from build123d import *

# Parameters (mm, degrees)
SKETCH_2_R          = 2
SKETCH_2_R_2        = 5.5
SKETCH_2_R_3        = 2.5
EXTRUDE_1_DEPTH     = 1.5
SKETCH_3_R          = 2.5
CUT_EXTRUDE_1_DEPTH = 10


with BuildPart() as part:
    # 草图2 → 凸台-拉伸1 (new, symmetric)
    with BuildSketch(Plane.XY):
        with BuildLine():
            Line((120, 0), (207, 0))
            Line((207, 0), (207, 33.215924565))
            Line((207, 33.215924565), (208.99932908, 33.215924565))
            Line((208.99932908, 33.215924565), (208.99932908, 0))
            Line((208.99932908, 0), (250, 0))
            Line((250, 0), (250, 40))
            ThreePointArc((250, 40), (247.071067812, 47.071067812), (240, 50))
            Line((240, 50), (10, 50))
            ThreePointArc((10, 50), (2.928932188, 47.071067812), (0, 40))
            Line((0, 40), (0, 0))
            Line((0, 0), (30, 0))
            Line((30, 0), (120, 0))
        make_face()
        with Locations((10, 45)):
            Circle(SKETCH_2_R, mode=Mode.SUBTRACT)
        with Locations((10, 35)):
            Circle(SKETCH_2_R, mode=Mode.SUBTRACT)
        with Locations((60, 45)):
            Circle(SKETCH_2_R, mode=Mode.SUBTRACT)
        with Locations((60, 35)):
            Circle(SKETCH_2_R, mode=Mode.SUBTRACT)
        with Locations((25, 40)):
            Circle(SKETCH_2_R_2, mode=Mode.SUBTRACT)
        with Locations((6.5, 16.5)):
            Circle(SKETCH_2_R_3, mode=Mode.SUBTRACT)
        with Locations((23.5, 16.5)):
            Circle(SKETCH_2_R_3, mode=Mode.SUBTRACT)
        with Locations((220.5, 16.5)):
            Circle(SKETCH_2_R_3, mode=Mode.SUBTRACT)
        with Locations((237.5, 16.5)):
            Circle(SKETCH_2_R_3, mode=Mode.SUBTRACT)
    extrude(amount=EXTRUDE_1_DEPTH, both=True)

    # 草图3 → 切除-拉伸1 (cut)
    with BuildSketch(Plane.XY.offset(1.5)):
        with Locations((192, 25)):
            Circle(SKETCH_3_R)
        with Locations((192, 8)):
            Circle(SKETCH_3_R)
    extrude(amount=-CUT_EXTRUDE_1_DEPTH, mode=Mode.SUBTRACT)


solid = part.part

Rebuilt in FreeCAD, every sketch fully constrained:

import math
import FreeCAD as App
import Part
import Sketcher

V = App.Vector

doc = App.newDocument("Part")
body = doc.addObject("PartDesign::Body", "Body")

sketch1 = body.newObject("Sketcher::SketchObject", "Sketch")
sketch1.AttachmentSupport = (doc.getObject("XY_Plane"), [""])
sketch1.MapMode = "FlatFace"
sketch1.addGeometry([
    Part.LineSegment(V(207, 0, 0), V(207, 33.2, 0)),
    Part.LineSegment(V(207, 33.2, 0), V(209, 33.2, 0)),
    Part.LineSegment(V(209, 33.2, 0), V(209, 0, 0)),
    Part.LineSegment(V(209, 0, 0), V(250, 0, 0)),
    Part.LineSegment(V(250, 0, 0), V(250, 40, 0)),
    Part.ArcOfCircle(Part.Circle(V(240, 40, 0), V(0, 0, 1), 10), math.radians(0), math.radians(90)),
    Part.LineSegment(V(240, 50, 0), V(10, 50, 0)),
    Part.ArcOfCircle(Part.Circle(V(10, 40, 0), V(0, 0, 1), 10), math.radians(90), math.radians(180)),
    Part.LineSegment(V(0, 40, 0), V(0, 0, 0)),
    Part.LineSegment(V(0, 0, 0), V(207, 0, 0)),
    Part.Circle(V(6.5, 16.5, 0), V(0, 0, 1), 2.5),
    Part.Circle(V(23.5, 16.5, 0), V(0, 0, 1), 2.5),
    Part.Circle(V(220.5, 16.5, 0), V(0, 0, 1), 2.5),
    Part.Circle(V(237.5, 16.5, 0), V(0, 0, 1), 2.5),
    Part.Circle(V(10, 35, 0), V(0, 0, 1), 2),
    Part.Circle(V(60, 35, 0), V(0, 0, 1), 2),
    Part.Circle(V(25, 40, 0), V(0, 0, 1), 5.5),
    Part.Circle(V(10, 45, 0), V(0, 0, 1), 2),
    Part.Circle(V(60, 45, 0), V(0, 0, 1), 2),
], False)
sketch1.addConstraint([
    Sketcher.Constraint("Coincident", 0, 2, 1, 1),
    Sketcher.Constraint("Coincident", 1, 2, 2, 1),
    Sketcher.Constraint("Coincident", 2, 2, 3, 1),
    Sketcher.Constraint("Coincident", 3, 2, 4, 1),
    Sketcher.Constraint("Tangent", 4, 2, 5, 1),
    Sketcher.Constraint("Tangent", 5, 2, 6, 1),
    Sketcher.Constraint("Tangent", 6, 2, 7, 1),
    Sketcher.Constraint("Tangent", 7, 2, 8, 1),
    Sketcher.Constraint("Coincident", 8, 2, 9, 1),
    Sketcher.Constraint("Coincident", 9, 2, 0, 1),
    Sketcher.Constraint("Vertical", 0),
    Sketcher.Constraint("Horizontal", 1),
    Sketcher.Constraint("Vertical", 2),
    Sketcher.Constraint("Horizontal", 3),
    Sketcher.Constraint("Vertical", 4),
    Sketcher.Constraint("Horizontal", 6),
    Sketcher.Constraint("Vertical", 8),
    Sketcher.Constraint("Horizontal", 9),
    Sketcher.Constraint("Coincident", 8, 2, -1, 1),
    Sketcher.Constraint("Equal", 5, 7),
    Sketcher.Constraint("Equal", 10, 11),
    Sketcher.Constraint("Equal", 11, 12),
    Sketcher.Constraint("Equal", 12, 13),
    Sketcher.Constraint("Equal", 14, 15),
    Sketcher.Constraint("Equal", 15, 17),
    Sketcher.Constraint("Equal", 17, 18),
    Sketcher.Constraint("PointOnObject", 2, 2, -1),
    Sketcher.Constraint("Horizontal", 10, 3, 11, 3),
    Sketcher.Constraint("Horizontal", 11, 3, 12, 3),
    Sketcher.Constraint("Horizontal", 12, 3, 13, 3),
    Sketcher.Constraint("Horizontal", 14, 3, 15, 3),
    Sketcher.Constraint("Horizontal", 7, 3, 16, 3),
    Sketcher.Constraint("Horizontal", 17, 3, 18, 3),
    Sketcher.Constraint("Vertical", 7, 3, 14, 3),
    Sketcher.Constraint("Vertical", 14, 3, 17, 3),
    Sketcher.Constraint("Vertical", 15, 3, 18, 3),
    Sketcher.Constraint("Diameter", 10, 5.0),
    Sketcher.Constraint("Diameter", 14, 4.0),
    Sketcher.Constraint("Diameter", 16, 11.0),
    Sketcher.Constraint("Radius", 5, 10.0),
    Sketcher.Constraint("DistanceX", 6, 2, 6, 1, 230.0),
    Sketcher.Constraint("DistanceX", 9, 1, 9, 2, 207.0),
    Sketcher.Constraint("DistanceY", 4, 1, 4, 2, 40.0),
    Sketcher.Constraint("DistanceY", -1, 1, 14, 3, 35.0),
    Sketcher.Constraint("DistanceX", -1, 1, 15, 3, 60.0),
    Sketcher.Constraint("DistanceX", -1, 1, 16, 3, 25.0),
    Sketcher.Constraint("DistanceY", -1, 1, 17, 3, 45.0),
    Sketcher.Constraint("DistanceX", 10, 3, 11, 3, 17.0),
    Sketcher.Constraint("DistanceX", 11, 3, 12, 3, 197.0),
    Sketcher.Constraint("DistanceX", 12, 3, 13, 3, 17.0),
    Sketcher.Constraint("DistanceX", -1, 1, 10, 3, 6.5),
    Sketcher.Constraint("DistanceY", -1, 1, 10, 3, 16.5),
    Sketcher.Constraint("DistanceX", 1, 1, 1, 2, 1.999329),
    Sketcher.Constraint("DistanceY", 0, 1, 0, 2, 33.215925),
])
pad1 = body.newObject("PartDesign::Pad", "Pad")
pad1.Profile = sketch1
pad1.Length = 3
pad1.Midplane = True

sketch2 = body.newObject("Sketcher::SketchObject", "Sketch001")
sketch2.AttachmentSupport = (doc.getObject("XY_Plane"), [""])
sketch2.MapMode = "FlatFace"
sketch2.AttachmentOffset = App.Placement(V(0, 0, 1.5), App.Rotation())
sketch2.addGeometry([
    Part.Circle(V(192, 25, 0), V(0, 0, 1), 2.5),
    Part.Circle(V(192, 8, 0), V(0, 0, 1), 2.5),
], False)
sketch2.addConstraint([
    Sketcher.Constraint("Equal", 0, 1),
    Sketcher.Constraint("Vertical", 0, 3, 1, 3),
    Sketcher.Constraint("Diameter", 0, 5.0),
    Sketcher.Constraint("DistanceX", -1, 1, 0, 3, 192.0),
    Sketcher.Constraint("DistanceY", -1, 1, 0, 3, 25.0),
    Sketcher.Constraint("DistanceY", -1, 1, 1, 3, 8.0),
])
pocket1 = body.newObject("PartDesign::Pocket", "Pocket")
pocket1.Profile = sketch2
pocket1.Length = 10

doc.recompute()
